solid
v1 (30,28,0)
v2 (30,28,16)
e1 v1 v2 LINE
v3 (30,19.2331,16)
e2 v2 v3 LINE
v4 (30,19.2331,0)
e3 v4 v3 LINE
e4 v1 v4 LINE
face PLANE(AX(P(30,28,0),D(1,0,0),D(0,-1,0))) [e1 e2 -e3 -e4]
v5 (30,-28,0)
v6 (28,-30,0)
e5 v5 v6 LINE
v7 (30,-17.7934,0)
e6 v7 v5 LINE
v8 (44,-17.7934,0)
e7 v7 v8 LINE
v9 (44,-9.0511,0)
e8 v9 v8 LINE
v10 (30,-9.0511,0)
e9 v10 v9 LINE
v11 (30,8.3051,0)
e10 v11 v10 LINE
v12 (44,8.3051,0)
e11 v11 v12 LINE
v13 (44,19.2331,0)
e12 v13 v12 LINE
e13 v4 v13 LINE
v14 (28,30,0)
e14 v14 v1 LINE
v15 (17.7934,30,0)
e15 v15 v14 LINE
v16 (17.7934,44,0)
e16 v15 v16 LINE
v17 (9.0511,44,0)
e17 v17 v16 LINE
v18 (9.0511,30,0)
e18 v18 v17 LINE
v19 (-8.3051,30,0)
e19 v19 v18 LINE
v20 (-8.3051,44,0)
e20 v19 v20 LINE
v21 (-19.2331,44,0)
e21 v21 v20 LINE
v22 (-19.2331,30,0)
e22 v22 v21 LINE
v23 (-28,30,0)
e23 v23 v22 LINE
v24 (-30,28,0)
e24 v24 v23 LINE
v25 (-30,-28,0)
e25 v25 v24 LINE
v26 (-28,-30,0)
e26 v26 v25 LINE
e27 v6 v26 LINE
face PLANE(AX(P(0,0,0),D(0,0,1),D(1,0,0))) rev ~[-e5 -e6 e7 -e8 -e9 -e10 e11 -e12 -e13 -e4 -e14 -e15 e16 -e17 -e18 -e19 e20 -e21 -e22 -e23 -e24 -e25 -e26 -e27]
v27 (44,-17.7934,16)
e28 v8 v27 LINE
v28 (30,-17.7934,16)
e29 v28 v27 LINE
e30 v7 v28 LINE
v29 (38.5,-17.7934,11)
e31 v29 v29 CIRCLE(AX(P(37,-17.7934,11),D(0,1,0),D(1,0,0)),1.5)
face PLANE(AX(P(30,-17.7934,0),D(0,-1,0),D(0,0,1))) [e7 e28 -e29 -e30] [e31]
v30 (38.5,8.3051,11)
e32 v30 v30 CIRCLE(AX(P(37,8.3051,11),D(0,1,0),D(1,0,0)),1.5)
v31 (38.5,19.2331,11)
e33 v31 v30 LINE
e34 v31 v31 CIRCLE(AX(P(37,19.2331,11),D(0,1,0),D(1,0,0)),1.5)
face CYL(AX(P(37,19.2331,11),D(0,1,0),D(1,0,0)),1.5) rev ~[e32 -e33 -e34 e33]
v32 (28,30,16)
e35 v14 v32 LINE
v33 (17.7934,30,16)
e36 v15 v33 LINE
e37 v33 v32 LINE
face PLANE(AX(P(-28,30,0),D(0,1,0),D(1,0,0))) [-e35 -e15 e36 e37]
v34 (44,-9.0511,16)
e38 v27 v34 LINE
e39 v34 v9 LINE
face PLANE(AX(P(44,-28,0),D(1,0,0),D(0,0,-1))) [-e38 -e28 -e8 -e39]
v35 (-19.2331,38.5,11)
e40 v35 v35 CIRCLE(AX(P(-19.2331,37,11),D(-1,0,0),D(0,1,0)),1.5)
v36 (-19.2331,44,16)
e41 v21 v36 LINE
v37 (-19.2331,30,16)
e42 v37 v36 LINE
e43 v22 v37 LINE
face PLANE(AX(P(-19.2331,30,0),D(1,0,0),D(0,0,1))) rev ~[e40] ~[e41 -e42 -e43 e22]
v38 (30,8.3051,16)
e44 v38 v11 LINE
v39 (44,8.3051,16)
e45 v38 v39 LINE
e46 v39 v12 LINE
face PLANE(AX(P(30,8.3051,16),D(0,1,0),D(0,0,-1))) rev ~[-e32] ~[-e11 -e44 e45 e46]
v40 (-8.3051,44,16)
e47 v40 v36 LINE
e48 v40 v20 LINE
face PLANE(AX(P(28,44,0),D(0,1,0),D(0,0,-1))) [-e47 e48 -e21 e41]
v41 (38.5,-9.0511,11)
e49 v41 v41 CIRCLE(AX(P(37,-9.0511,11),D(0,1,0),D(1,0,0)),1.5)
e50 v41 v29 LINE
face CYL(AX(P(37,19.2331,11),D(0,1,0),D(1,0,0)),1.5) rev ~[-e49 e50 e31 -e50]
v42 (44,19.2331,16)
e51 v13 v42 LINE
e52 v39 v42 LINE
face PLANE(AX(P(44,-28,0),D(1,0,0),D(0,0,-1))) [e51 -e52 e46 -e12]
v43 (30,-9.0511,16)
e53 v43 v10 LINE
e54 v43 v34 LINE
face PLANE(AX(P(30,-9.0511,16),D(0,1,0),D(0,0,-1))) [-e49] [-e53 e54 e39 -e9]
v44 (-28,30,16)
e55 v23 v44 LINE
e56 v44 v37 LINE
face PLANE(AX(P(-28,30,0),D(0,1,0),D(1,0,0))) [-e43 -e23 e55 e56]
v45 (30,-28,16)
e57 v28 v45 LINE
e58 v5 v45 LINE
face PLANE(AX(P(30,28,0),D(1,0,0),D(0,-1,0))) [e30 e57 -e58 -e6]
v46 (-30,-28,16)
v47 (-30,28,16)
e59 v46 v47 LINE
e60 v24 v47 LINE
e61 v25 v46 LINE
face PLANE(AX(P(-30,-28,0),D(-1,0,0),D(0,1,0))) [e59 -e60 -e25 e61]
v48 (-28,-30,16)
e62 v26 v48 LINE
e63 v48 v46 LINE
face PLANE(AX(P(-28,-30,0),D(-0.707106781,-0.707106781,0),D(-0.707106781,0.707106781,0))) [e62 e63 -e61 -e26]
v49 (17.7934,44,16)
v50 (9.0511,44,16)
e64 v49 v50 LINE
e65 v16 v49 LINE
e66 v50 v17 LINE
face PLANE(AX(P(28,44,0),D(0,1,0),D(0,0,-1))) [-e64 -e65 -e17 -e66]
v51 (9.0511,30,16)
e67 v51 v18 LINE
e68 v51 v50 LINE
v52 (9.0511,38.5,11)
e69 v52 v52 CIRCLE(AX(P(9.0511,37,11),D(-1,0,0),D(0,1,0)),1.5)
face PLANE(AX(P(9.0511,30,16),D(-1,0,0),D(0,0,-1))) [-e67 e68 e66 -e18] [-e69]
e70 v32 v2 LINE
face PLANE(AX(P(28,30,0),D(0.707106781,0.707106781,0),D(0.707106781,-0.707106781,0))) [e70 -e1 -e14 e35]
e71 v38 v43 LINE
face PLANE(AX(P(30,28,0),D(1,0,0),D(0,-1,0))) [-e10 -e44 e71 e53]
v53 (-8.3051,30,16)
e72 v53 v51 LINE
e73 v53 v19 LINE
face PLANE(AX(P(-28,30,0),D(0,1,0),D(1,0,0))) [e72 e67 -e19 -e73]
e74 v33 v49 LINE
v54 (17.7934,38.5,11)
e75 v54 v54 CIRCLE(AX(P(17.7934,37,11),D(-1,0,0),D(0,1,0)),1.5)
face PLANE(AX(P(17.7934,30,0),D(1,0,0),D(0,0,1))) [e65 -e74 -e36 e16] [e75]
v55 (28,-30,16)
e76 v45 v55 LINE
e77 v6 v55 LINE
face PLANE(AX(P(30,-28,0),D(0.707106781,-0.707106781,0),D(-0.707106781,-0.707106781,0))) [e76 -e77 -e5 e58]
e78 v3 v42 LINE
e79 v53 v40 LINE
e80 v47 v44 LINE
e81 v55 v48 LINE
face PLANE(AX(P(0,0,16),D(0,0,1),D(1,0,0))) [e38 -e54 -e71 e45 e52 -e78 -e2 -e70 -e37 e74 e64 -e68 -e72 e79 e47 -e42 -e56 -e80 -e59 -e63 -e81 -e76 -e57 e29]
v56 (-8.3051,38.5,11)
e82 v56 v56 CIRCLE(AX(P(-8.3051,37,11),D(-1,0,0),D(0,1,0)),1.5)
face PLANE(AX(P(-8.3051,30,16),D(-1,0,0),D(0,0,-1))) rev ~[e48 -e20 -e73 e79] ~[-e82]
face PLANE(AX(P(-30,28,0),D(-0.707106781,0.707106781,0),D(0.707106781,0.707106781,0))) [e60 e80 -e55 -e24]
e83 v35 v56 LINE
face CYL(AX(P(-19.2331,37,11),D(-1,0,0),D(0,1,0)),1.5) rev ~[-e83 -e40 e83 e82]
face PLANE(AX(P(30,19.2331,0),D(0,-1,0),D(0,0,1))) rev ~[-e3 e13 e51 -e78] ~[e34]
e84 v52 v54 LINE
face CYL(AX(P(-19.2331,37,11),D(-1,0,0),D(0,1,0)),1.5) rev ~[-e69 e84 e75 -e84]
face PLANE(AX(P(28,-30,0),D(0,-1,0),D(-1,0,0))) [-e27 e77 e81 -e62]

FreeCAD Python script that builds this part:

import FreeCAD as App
import Part
import Sketcher

V = App.Vector


def add_polygon(sketch, points):
    """Adds a closed chain of lines whose ends are joined by coincident constraints."""
    first, n = sketch.GeometryCount, len(points)
    for a, b in zip(points, points[1:] + points[:1]):
        sketch.addGeometry(Part.LineSegment(App.Vector(*a, 0), App.Vector(*b, 0)), False)
    for i in range(n):
        sketch.addConstraint(Sketcher.Constraint("Coincident", first + i, 2, first + (i + 1) % n, 1))

doc = App.newDocument("Part")
body = doc.addObject("PartDesign::Body", "Body")

sketch1 = body.newObject("Sketcher::SketchObject", "Sketch")
sketch1.AttachmentSupport = (doc.getObject("XY_Plane"), [""])
sketch1.MapMode = "FlatFace"
add_polygon(sketch1, [(-28, 30), (-30, 28), (-30, -28), (-28, -30), (28, -30), (30, -28), (30, 28), (28, 30)])
sketch1.addConstraint([
    Sketcher.Constraint("Vertical", 1),
    Sketcher.Constraint("Horizontal", 3),
    Sketcher.Constraint("Vertical", 5),
    Sketcher.Constraint("Horizontal", 7),
    Sketcher.Constraint("Symmetric", 0, 2, 4, 2, -1, 1),
    Sketcher.Constraint("Symmetric", 2, 2, 6, 2, -1, 1),
    Sketcher.Constraint("Perpendicular", 0, 2),
    Sketcher.Constraint("Perpendicular", 2, 4),
    Sketcher.Constraint("Perpendicular", 4, 6),
    Sketcher.Constraint("Horizontal", 1, 2, 4, 2),
    Sketcher.Constraint("Vertical", 3, 2, 6, 2),
    Sketcher.Constraint("Equal", 7, 1),
    Sketcher.Constraint("DistanceX", 3, 1, 3, 2, 56.0),
    Sketcher.Constraint("DistanceX", 0, 2, -1, 1, 30.0),
])
pad1 = body.newObject("PartDesign::Pad", "Pad")
pad1.Profile = sketch1
pad1.Length = 16

sketch2 = body.newObject("Sketcher::SketchObject", "Sketch001")
sketch2.AttachmentSupport = (doc.getObject("YZ_Plane"), [""])
sketch2.MapMode = "FlatFace"
sketch2.AttachmentOffset = App.Placement(V(0, 0, 30), App.Rotation())
add_polygon(sketch2, [(8, 0), (19, 0), (19, 16), (8, 16)])
add_polygon(sketch2, [(-18, 0), (-9, 0), (-9, 16), (-18, 16)])
sketch2.addConstraint([
    Sketcher.Constraint("Horizontal", 0),
    Sketcher.Constraint("Vertical", 1),
    Sketcher.Constraint("Horizontal", 2),
    Sketcher.Constraint("Vertical", 3),
    Sketcher.Constraint("Horizontal", 4),
    Sketcher.Constraint("Vertical", 5),
    Sketcher.Constraint("Horizontal", 6),
    Sketcher.Constraint("Vertical", 7),
    Sketcher.Constraint("PointOnObject", 0, 2, -1),
    Sketcher.Constraint("PointOnObject", 4, 2, -1),
    Sketcher.Constraint("Horizontal", 2, 2, 5, 2),
    Sketcher.Constraint("DistanceY", 1, 1, 1, 2, 16.0),
    Sketcher.Constraint("DistanceX", 0, 1, 0, 2, 10.928),
    Sketcher.Constraint("DistanceX", 4, 1, 4, 2, 8.7423),
    Sketcher.Constraint("DistanceX", -1, 1, 0, 2, 19.233),
    Sketcher.Constraint("DistanceX", 4, 2, -1, 1, 9.051),
])
pad2 = body.newObject("PartDesign::Pad", "Pad001")
pad2.Profile = sketch2
pad2.Length = 14

sketch3 = body.newObject("Sketcher::SketchObject", "Sketch002")
sketch3.AttachmentSupport = (doc.getObject("XZ_Plane"), [""])
sketch3.MapMode = "FlatFace"
sketch3.AttachmentOffset = App.Placement(V(0, 0, -19.2331), App.Rotation())
sketch3.addGeometry(Part.Circle(V(37, 11, 0), V(0, 0, 1), 1.5), False)
sketch3.addConstraint([
    Sketcher.Constraint("Diameter", 0, 3.0),
    Sketcher.Constraint("DistanceX", -1, 1, 0, 3, 37.0),
    Sketcher.Constraint("DistanceY", -1, 1, 0, 3, 11.0),
])
pocket1 = body.newObject("PartDesign::Pocket", "Pocket")
pocket1.Profile = sketch3
pocket1.Type = "ThroughAll"
pocket1.Reversed = True
doc.recompute()

polarpattern = body.newObject("PartDesign::PolarPattern", "PolarPattern")
polarpattern.Originals = [pad2, pocket1]
polarpattern.Axis = (doc.getObject("Z_Axis"), [""])
polarpattern.Angle = 90
polarpattern.Occurrences = 2
body.Tip = polarpattern

doc.recompute()
